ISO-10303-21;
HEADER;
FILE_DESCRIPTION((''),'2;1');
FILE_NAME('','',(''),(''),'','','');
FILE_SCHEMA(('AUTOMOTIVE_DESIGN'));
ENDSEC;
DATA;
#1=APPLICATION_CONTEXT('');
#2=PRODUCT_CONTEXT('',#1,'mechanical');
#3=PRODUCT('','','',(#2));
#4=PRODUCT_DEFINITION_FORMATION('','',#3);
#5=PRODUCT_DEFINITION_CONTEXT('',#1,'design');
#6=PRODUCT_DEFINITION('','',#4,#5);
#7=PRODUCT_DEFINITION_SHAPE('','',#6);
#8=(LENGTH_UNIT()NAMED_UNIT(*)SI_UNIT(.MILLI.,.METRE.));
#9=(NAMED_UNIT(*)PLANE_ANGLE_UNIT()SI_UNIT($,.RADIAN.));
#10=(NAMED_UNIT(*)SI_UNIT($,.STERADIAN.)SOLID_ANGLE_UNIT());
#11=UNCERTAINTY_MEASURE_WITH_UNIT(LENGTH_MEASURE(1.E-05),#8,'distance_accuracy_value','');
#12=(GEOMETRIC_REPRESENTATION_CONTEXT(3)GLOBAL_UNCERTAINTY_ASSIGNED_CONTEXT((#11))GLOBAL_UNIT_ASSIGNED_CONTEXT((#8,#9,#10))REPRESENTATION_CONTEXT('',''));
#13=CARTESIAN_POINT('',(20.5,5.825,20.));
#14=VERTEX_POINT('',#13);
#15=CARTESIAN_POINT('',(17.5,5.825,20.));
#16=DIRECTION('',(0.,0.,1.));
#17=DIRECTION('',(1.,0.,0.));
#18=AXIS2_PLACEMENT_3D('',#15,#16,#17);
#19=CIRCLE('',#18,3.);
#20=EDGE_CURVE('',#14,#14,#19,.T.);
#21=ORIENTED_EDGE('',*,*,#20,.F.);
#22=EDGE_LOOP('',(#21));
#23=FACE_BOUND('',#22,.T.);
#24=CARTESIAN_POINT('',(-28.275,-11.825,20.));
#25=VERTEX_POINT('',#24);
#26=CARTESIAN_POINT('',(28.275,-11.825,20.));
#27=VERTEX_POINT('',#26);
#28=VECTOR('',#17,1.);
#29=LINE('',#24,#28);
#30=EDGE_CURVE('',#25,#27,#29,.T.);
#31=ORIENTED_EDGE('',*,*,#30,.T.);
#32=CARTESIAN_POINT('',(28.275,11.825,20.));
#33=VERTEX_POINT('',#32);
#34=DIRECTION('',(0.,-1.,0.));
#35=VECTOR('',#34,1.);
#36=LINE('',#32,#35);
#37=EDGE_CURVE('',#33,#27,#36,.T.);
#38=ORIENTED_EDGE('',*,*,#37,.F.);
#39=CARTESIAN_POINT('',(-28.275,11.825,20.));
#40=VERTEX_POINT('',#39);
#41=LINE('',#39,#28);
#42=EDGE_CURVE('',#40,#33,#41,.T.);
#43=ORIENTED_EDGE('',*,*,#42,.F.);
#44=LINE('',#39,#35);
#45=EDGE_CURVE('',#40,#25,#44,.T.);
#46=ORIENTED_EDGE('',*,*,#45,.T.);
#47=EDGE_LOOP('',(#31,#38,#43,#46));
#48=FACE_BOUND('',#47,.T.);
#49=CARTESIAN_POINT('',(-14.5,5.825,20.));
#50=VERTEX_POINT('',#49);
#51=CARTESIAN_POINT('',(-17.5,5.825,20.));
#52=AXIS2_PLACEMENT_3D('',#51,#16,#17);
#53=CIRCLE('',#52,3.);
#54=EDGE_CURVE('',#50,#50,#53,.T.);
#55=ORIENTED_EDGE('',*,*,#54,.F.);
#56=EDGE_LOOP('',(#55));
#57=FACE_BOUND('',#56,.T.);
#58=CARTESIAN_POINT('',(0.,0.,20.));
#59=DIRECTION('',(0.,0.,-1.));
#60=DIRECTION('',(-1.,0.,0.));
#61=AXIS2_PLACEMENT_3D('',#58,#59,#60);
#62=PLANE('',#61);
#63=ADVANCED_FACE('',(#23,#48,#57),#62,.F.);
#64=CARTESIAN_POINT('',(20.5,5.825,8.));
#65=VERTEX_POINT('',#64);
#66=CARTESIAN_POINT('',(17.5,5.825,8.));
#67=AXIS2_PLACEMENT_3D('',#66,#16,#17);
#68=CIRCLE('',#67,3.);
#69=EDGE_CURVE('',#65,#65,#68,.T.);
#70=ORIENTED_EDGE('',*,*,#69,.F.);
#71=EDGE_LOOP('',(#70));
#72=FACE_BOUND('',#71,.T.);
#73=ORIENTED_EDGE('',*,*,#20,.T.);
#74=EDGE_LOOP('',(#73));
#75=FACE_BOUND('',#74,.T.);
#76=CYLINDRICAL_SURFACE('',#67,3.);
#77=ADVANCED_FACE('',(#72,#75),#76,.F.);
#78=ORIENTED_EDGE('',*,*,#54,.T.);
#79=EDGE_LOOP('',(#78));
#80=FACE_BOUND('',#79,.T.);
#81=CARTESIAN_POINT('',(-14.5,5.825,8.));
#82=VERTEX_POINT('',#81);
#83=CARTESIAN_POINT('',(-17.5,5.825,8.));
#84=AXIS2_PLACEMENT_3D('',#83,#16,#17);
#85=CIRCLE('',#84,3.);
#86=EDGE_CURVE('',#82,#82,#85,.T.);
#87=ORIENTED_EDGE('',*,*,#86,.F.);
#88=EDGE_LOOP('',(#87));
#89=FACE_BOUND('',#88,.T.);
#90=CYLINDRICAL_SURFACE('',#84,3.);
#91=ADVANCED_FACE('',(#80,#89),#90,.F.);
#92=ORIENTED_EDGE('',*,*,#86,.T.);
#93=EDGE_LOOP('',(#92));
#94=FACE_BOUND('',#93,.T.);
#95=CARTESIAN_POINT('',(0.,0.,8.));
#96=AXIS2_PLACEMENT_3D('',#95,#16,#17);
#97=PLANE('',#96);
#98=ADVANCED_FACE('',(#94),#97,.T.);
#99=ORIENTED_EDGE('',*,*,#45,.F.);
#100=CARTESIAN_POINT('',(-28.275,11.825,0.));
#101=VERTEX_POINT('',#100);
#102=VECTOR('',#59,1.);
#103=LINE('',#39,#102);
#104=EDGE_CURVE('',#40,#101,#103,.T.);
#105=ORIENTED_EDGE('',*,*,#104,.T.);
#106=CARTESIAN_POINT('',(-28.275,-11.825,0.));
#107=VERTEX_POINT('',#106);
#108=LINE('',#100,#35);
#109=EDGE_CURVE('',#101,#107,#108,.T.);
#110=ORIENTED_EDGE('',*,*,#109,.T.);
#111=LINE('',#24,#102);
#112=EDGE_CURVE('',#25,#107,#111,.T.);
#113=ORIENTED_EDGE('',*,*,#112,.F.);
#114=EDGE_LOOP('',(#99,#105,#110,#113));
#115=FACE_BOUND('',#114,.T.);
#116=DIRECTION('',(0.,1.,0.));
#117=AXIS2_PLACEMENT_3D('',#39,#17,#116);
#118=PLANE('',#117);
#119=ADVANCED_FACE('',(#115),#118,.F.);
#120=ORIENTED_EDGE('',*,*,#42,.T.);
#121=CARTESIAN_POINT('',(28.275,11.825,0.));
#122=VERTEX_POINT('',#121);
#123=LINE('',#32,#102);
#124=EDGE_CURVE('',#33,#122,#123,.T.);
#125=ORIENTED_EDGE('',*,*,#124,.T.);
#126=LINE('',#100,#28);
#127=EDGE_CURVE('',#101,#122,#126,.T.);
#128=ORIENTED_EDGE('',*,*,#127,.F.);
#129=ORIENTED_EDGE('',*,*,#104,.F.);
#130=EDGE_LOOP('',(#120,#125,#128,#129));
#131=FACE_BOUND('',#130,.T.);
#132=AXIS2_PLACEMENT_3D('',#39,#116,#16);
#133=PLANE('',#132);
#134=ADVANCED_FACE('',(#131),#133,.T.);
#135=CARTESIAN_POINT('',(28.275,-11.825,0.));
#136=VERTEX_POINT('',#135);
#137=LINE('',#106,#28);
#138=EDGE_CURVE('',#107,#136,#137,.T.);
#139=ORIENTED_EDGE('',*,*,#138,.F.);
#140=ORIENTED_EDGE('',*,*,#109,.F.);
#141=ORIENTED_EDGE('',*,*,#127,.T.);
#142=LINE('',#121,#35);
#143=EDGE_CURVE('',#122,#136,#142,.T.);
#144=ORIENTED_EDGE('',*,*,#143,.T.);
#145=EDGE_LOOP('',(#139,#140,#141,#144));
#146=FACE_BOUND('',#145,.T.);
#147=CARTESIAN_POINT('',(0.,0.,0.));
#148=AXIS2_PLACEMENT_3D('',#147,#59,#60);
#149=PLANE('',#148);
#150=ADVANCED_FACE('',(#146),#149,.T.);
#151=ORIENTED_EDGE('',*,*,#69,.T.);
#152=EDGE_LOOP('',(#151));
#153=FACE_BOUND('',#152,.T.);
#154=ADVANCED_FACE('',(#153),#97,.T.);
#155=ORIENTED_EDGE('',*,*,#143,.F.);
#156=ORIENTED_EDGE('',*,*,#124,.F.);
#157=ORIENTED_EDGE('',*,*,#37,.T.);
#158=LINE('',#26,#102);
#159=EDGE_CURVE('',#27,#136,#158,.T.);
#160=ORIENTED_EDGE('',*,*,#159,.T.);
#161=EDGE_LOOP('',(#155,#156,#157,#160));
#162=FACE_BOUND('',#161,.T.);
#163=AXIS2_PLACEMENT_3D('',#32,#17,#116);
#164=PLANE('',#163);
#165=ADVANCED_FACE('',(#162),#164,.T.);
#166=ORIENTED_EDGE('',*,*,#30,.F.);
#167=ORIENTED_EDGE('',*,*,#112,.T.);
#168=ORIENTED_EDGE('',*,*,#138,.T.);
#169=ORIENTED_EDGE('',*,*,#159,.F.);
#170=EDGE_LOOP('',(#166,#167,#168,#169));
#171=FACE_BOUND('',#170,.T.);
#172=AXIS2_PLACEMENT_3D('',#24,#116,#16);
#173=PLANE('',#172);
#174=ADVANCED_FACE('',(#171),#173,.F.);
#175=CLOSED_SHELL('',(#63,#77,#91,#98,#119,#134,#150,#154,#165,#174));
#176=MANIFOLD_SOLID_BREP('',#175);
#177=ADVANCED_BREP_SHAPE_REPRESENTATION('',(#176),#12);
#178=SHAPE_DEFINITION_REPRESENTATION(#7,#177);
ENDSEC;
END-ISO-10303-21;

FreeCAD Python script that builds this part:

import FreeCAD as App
import Part
import Sketcher

V = App.Vector

doc = App.newDocument("Part")
body = doc.addObject("PartDesign::Body", "Body")

sketch1 = body.newObject("Sketcher::SketchObject", "Sketch")
sketch1.AttachmentSupport = (doc.getObject("XY_Plane"), [""])
sketch1.MapMode = "FlatFace"
sketch1.addGeometry([
    Part.LineSegment(V(-28.275, 11.825, 0), V(-28.275, -11.825, 0)),
    Part.LineSegment(V(-28.275, -11.825, 0), V(28.275, -11.825, 0)),
    Part.LineSegment(V(28.275, -11.825, 0), V(28.275, 11.825, 0)),
    Part.LineSegment(V(28.275, 11.825, 0), V(-28.275, 11.825, 0)),
], False)
sketch1.addConstraint([
    Sketcher.Constraint("Coincident", 0, 2, 1, 1),
    Sketcher.Constraint("Coincident", 1, 2, 2, 1),
    Sketcher.Constraint("Coincident", 2, 2, 3, 1),
    Sketcher.Constraint("Coincident", 3, 2, 0, 1),
    Sketcher.Constraint("Vertical", 0),
    Sketcher.Constraint("Horizontal", 1),
    Sketcher.Constraint("Vertical", 2),
    Sketcher.Constraint("Horizontal", 3),
    Sketcher.Constraint("Symmetric", 0, 2, 2, 2, -1, 1),
    Sketcher.Constraint("DistanceX", 1, 1, 1, 2, 56.55),
    Sketcher.Constraint("DistanceY", 0, 2, 0, 1, 23.65),
])
pad1 = body.newObject("PartDesign::Pad", "Pad")
pad1.Profile = sketch1
pad1.Length = 20

sketch2 = body.newObject("Sketcher::SketchObject", "Sketch001")
sketch2.AttachmentSupport = (doc.getObject("XY_Plane"), [""])
sketch2.MapMode = "FlatFace"
sketch2.AttachmentOffset = App.Placement(V(0, 0, 20), App.Rotation())
sketch2.addGeometry([
    Part.Circle(V(-17.5, 5.825, 0), V(0, 0, 1), 3),
    Part.Circle(V(17.5, 5.825, 0), V(0, 0, 1), 3),
], False)
sketch2.addConstraint([
    Sketcher.Constraint("Equal", 0, 1),
    Sketcher.Constraint("Symmetric", 0, 3, 1, 3, -2),
    Sketcher.Constraint("Diameter", 0, 6.0),
    Sketcher.Constraint("DistanceX", 0, 3, 1, 3, 35.0),
    Sketcher.Constraint("DistanceY", -1, 1, 0, 3, 5.825),
])
pocket1 = body.newObject("PartDesign::Pocket", "Pocket")
pocket1.Profile = sketch2
pocket1.Length = 12

doc.recompute()
